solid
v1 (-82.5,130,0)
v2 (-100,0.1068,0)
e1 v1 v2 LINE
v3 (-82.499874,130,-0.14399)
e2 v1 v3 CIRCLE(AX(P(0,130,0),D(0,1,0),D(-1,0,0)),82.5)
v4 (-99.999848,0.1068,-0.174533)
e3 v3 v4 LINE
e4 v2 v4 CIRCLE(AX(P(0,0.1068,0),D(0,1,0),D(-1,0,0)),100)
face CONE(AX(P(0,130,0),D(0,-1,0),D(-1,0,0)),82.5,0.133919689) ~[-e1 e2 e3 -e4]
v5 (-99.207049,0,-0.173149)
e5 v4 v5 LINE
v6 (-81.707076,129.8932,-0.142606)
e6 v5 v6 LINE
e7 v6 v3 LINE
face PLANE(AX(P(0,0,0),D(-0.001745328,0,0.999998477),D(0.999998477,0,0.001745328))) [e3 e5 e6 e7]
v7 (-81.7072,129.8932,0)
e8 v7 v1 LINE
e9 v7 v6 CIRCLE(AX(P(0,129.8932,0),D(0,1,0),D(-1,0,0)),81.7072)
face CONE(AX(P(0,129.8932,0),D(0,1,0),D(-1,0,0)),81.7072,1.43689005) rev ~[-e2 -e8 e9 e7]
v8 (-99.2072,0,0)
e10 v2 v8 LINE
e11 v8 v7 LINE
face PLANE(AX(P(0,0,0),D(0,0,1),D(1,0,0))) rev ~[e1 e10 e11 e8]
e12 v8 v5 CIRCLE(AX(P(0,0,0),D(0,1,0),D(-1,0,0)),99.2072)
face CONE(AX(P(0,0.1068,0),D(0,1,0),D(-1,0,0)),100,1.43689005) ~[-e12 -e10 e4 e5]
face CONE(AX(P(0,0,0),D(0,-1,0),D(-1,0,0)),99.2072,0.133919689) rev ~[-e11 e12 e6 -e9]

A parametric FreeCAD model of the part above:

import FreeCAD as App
import Part
import Sketcher

V = App.Vector

doc = App.newDocument("Part")
body = doc.addObject("PartDesign::Body", "Body")

# Sketch on XY plane
sketch1 = body.newObject("Sketcher::SketchObject", "Sketch")
sketch1.AttachmentSupport = (doc.getObject("XY_Plane"), [""])
sketch1.MapMode = "FlatFace"
sketch1.addGeometry([
    Part.LineSegment(V(-81.7, 129.9, 0), V(-82.5, 130, 0)),
    Part.LineSegment(V(-82.5, 130, 0), V(-100, 0.1, 0)),
    Part.LineSegment(V(-100, 0.1, 0), V(-99.2, 0, 0)),
    Part.LineSegment(V(-99.2, 0, 0), V(-81.7, 129.9, 0)),
], False)
sketch1.addConstraint([
    Sketcher.Constraint("Coincident", 0, 2, 1, 1),
    Sketcher.Constraint("Coincident", 1, 2, 2, 1),
    Sketcher.Constraint("Coincident", 2, 2, 3, 1),
    Sketcher.Constraint("Coincident", 3, 2, 0, 1),
    Sketcher.Constraint("PointOnObject", 2, 2, -1),
    Sketcher.Constraint("Perpendicular", 0, 1),
    Sketcher.Constraint("Perpendicular", 1, 2),
    Sketcher.Constraint("Perpendicular", 2, 3),
    Sketcher.Constraint("DistanceY", -1, 1, 0, 2, 130.0),
    Sketcher.Constraint("Distance", 0, 0.8),
    Sketcher.Constraint("DistanceX", 1, 2, -1, 1, 100.0),
    Sketcher.Constraint("DistanceX", 0, 2, -1, 1, 82.5),
])
revolution = body.newObject("PartDesign::Revolution", "Revolution")
revolution.Profile = sketch1
revolution.ReferenceAxis = (sketch1, ["V_Axis"])
revolution.Angle = 359.9

doc.recompute()
